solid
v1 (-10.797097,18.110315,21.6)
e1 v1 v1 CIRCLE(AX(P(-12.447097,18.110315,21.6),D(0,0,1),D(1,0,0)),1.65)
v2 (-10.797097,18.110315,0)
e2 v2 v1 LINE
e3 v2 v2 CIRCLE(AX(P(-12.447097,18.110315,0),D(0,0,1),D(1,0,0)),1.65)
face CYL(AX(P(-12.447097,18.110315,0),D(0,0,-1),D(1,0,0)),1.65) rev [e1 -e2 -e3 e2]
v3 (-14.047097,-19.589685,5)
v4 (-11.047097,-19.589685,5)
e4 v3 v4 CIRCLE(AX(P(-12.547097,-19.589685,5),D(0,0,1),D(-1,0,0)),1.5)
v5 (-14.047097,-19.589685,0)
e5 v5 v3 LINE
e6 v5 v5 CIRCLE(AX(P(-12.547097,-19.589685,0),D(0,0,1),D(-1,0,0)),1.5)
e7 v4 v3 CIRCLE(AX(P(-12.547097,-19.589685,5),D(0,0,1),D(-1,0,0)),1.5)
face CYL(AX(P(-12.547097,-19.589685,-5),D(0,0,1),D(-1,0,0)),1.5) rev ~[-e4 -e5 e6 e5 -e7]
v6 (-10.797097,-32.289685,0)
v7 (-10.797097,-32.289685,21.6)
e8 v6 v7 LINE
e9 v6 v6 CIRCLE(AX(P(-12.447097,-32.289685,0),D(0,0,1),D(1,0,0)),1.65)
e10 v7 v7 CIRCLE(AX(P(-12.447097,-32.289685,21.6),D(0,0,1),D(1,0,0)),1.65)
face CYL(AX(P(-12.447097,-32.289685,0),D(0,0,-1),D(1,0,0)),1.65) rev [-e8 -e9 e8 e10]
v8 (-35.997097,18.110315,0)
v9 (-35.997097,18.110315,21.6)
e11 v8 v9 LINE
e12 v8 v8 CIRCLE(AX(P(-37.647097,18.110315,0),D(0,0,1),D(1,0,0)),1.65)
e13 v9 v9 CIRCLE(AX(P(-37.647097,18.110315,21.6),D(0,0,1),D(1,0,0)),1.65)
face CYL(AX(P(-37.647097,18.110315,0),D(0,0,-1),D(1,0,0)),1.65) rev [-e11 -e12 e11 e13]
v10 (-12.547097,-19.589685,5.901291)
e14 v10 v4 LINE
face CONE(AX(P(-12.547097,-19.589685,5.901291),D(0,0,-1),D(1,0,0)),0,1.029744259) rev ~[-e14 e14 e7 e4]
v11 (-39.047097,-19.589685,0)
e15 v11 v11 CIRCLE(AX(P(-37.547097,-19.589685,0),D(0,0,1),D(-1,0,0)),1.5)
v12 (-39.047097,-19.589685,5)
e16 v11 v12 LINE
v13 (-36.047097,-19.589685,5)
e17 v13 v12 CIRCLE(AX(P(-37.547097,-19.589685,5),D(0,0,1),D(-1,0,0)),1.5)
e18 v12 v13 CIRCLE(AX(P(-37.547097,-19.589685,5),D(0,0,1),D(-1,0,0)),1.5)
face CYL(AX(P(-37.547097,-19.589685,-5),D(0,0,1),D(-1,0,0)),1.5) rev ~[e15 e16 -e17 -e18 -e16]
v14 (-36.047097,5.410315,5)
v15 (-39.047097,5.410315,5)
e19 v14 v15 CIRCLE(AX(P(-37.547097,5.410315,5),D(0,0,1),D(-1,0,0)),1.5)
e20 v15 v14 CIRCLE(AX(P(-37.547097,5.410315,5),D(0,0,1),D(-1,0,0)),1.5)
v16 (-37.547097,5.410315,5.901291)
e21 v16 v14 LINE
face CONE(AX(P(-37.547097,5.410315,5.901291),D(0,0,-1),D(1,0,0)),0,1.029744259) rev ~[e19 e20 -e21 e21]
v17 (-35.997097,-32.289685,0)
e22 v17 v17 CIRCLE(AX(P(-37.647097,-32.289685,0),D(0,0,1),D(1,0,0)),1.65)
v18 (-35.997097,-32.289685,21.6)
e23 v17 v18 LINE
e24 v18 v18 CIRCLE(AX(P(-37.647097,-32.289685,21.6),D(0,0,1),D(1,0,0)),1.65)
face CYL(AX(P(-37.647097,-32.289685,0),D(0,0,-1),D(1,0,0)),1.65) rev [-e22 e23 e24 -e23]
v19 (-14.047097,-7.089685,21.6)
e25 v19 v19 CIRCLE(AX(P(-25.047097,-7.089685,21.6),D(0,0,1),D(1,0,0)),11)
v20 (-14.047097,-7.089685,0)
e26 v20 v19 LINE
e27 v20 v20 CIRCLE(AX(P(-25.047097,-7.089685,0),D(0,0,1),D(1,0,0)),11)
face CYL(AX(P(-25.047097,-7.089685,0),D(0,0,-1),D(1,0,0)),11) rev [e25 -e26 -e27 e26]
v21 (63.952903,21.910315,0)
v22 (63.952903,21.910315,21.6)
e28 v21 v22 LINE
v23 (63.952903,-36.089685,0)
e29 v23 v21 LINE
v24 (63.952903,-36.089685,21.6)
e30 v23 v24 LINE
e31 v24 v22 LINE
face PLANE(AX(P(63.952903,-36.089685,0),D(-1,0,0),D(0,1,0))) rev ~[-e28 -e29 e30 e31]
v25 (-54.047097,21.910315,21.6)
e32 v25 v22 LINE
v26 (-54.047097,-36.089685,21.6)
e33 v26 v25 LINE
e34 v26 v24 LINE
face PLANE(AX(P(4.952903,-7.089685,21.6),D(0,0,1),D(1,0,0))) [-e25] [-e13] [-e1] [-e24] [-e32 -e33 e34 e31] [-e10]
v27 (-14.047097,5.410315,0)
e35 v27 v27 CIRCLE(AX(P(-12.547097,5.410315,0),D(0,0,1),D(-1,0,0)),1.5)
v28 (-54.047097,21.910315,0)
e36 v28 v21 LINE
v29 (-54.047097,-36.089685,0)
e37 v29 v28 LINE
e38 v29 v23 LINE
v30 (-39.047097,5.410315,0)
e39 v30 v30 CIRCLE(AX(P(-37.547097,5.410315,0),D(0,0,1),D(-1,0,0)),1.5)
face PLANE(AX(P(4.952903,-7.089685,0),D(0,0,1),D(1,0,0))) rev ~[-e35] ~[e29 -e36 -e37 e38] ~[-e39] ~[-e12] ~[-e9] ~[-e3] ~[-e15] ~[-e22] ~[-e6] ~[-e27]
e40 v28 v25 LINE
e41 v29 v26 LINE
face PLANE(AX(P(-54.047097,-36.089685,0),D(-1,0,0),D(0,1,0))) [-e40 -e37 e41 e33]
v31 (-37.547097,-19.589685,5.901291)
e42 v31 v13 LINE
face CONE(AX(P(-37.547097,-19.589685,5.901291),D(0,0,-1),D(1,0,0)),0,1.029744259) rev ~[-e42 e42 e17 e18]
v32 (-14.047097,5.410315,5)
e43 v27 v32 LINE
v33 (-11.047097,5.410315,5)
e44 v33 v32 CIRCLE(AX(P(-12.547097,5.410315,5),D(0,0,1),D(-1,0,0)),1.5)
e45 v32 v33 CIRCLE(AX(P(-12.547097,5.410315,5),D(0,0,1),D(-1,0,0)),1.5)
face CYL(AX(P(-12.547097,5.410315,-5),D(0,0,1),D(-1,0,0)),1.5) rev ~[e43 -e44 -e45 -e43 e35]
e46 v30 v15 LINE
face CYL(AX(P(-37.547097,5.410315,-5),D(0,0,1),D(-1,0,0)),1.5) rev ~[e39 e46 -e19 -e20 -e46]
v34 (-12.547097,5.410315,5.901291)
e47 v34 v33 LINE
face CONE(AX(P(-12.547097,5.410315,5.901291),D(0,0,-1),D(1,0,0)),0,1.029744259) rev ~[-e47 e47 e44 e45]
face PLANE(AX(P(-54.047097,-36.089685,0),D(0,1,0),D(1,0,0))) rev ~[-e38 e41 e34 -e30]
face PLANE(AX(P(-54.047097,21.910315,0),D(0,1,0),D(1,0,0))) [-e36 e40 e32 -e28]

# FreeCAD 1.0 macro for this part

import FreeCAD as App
import Part
import Sketcher
from FreeCAD import Vector
Q = App.Units.Quantity

doc = App.newDocument("Part")
params = doc.addObject("Spreadsheet::Sheet", "Params")
for row, (alias, value) in enumerate([
    ("sketch1_diameter", "22 mm"),
    ("sketch1_diameter2", "3.3 mm"),
    ("sketch1_width", "118 mm"),
    ("sketch1_height", "58 mm"),
    ("pad1_length", "21.6 mm"),
    ("sketch2_diameter", "3 mm"),
    ("hole_diameter", "3 mm"),
    ("hole_depth", "5 mm"),
], start=1):
    params.set(f"A{row}", alias)
    params.set(f"B{row}", "=" + value)
    params.setAlias(f"B{row}", alias)

body = doc.addObject("PartDesign::Body", "Body")

sketch1 = doc.addObject("Sketcher::SketchObject", "Sketch")
body.addObject(sketch1)
sketch1.AttachmentSupport = (doc.XY_Plane, [""])
sketch1.MapMode = "FlatFace"
sketch1.addGeometry(Part.LineSegment(Vector(-54.047097, 21.910315, 0), Vector(-54.047097, -36.089685, 0)), False)
sketch1.addGeometry(Part.LineSegment(Vector(-54.047097, -36.089685, 0), Vector(63.952903, -36.089685, 0)), False)
sketch1.addGeometry(Part.LineSegment(Vector(63.952903, -36.089685, 0), Vector(63.952903, 21.910315, 0)), False)
sketch1.addGeometry(Part.LineSegment(Vector(63.952903, 21.910315, 0), Vector(-54.047097, 21.910315, 0)), False)
sketch1.addGeometry(Part.Circle(Vector(-37.647097, -32.289685, 0), Vector(0, 0, 1), 1.65), False)
sketch1.addGeometry(Part.Circle(Vector(-12.447097, -32.289685, 0), Vector(0, 0, 1), 1.65), False)
sketch1.addGeometry(Part.Circle(Vector(-25.047097, -7.089685, 0), Vector(0, 0, 1), 11), False)
sketch1.addGeometry(Part.Circle(Vector(-37.647097, 18.110315, 0), Vector(0, 0, 1), 1.65), False)
sketch1.addGeometry(Part.Circle(Vector(-12.447097, 18.110315, 0), Vector(0, 0, 1), 1.65), False)
sketch1.addConstraint(Sketcher.Constraint("Coincident", 0, 2, 1, 1))
sketch1.addConstraint(Sketcher.Constraint("Coincident", 1, 2, 2, 1))
sketch1.addConstraint(Sketcher.Constraint("Coincident", 2, 2, 3, 1))
sketch1.addConstraint(Sketcher.Constraint("Coincident", 3, 2, 0, 1))
sketch1.addConstraint(Sketcher.Constraint("Vertical", 0))
sketch1.addConstraint(Sketcher.Constraint("Horizontal", 1))
sketch1.addConstraint(Sketcher.Constraint("Vertical", 2))
sketch1.addConstraint(Sketcher.Constraint("Horizontal", 3))
sketch1.addConstraint(Sketcher.Constraint("Equal", 4, 5))
sketch1.addConstraint(Sketcher.Constraint("Equal", 5, 7))
sketch1.addConstraint(Sketcher.Constraint("Equal", 7, 8))
sketch1.addConstraint(Sketcher.Constraint("Horizontal", 4, 3, 5, 3))
sketch1.addConstraint(Sketcher.Constraint("Horizontal", 7, 3, 8, 3))
sketch1.addConstraint(Sketcher.Constraint("Vertical", 4, 3, 7, 3))
sketch1.addConstraint(Sketcher.Constraint("Vertical", 5, 3, 8, 3))
sketch1.addConstraint(Sketcher.Constraint("Diameter", 6, Q("22 mm")))
sketch1.addConstraint(Sketcher.Constraint("Diameter", 4, Q("3.3 mm")))
sketch1.addConstraint(Sketcher.Constraint("DistanceX", 1, 1, 1, 2, Q("118 mm")))
sketch1.addConstraint(Sketcher.Constraint("DistanceY", 0, 2, 0, 1, Q("58 mm")))
sketch1.addConstraint(Sketcher.Constraint("DistanceX", 0, 2, 6, 3, Q("29 mm")))
sketch1.addConstraint(Sketcher.Constraint("DistanceY", 0, 2, 6, 3, Q("29 mm")))
sketch1.addConstraint(Sketcher.Constraint("DistanceX", 4, 3, 5, 3, Q("25.2 mm")))
sketch1.addConstraint(Sketcher.Constraint("DistanceX", 4, 3, 6, 3, Q("12.6 mm")))
sketch1.addConstraint(Sketcher.Constraint("DistanceY", 4, 3, 6, 3, Q("25.2 mm")))
sketch1.addConstraint(Sketcher.Constraint("DistanceY", 6, 3, 7, 3, Q("25.2 mm")))
sketch1.addConstraint(Sketcher.Constraint("DistanceX", 4, 3, -1, 1, Q("37.647097 mm")))
sketch1.addConstraint(Sketcher.Constraint("DistanceY", 4, 3, -1, 1, Q("32.289685 mm")))
sketch1.setExpression("Constraints[15]", "Params.sketch1_diameter")
sketch1.setExpression("Constraints[16]", "Params.sketch1_diameter2")
sketch1.setExpression("Constraints[17]", "Params.sketch1_width")
sketch1.setExpression("Constraints[18]", "Params.sketch1_height")
pad1 = doc.addObject("PartDesign::Pad", "Pad")
body.addObject(pad1)
pad1.Profile = sketch1
pad1.setExpression("Length", "Params.pad1_length")

sketch2 = doc.addObject("Sketcher::SketchObject", "Sketch001")
body.addObject(sketch2)
sketch2.AttachmentSupport = (doc.XY_Plane, [""])
sketch2.MapMode = "FlatFace"
sketch2.addGeometry(Part.Circle(Vector(-37.547097, -19.589685, 0), Vector(0, 0, 1), 1.5), False)
sketch2.addGeometry(Part.Circle(Vector(-12.547097, -19.589685, 0), Vector(0, 0, 1), 1.5), False)
sketch2.addGeometry(Part.Circle(Vector(-12.547097, 5.410315, 0), Vector(0, 0, 1), 1.5), False)
sketch2.addGeometry(Part.Circle(Vector(-37.547097, 5.410315, 0), Vector(0, 0, 1), 1.5), False)
sketch2.addConstraint(Sketcher.Constraint("Equal", 0, 1))
sketch2.addConstraint(Sketcher.Constraint("Equal", 1, 2))
sketch2.addConstraint(Sketcher.Constraint("Equal", 2, 3))
sketch2.addConstraint(Sketcher.Constraint("Horizontal", 0, 3, 1, 3))
sketch2.addConstraint(Sketcher.Constraint("Horizontal", 2, 3, 3, 3))
sketch2.addConstraint(Sketcher.Constraint("Vertical", 1, 3, 2, 3))
sketch2.addConstraint(Sketcher.Constraint("Vertical", 0, 3, 3, 3))
sketch2.addConstraint(Sketcher.Constraint("Diameter", 0, Q("3 mm")))
sketch2.addConstraint(Sketcher.Constraint("DistanceX", 0, 3, 1, 3, Q("25 mm")))
sketch2.addConstraint(Sketcher.Constraint("DistanceY", 1, 3, 2, 3, Q("25 mm")))
sketch2.addConstraint(Sketcher.Constraint("DistanceX", 0, 3, -1, 1, Q("37.547097 mm")))
sketch2.addConstraint(Sketcher.Constraint("DistanceY", 0, 3, -1, 1, Q("19.589685 mm")))
sketch2.setExpression("Constraints[7]", "Params.sketch2_diameter")
doc.recompute()
hole = doc.addObject("PartDesign::Hole", "Hole")
body.addObject(hole)
hole.Profile = sketch2
hole.ThreadType = "None"
hole.setExpression("Diameter", "Params.hole_diameter")
hole.DepthType = "Dimension"
hole.setExpression("Depth", "Params.hole_depth")
hole.DrillPoint = "Angled"
hole.DrillPointAngle = 118
hole.Reversed = True

doc.recompute()
